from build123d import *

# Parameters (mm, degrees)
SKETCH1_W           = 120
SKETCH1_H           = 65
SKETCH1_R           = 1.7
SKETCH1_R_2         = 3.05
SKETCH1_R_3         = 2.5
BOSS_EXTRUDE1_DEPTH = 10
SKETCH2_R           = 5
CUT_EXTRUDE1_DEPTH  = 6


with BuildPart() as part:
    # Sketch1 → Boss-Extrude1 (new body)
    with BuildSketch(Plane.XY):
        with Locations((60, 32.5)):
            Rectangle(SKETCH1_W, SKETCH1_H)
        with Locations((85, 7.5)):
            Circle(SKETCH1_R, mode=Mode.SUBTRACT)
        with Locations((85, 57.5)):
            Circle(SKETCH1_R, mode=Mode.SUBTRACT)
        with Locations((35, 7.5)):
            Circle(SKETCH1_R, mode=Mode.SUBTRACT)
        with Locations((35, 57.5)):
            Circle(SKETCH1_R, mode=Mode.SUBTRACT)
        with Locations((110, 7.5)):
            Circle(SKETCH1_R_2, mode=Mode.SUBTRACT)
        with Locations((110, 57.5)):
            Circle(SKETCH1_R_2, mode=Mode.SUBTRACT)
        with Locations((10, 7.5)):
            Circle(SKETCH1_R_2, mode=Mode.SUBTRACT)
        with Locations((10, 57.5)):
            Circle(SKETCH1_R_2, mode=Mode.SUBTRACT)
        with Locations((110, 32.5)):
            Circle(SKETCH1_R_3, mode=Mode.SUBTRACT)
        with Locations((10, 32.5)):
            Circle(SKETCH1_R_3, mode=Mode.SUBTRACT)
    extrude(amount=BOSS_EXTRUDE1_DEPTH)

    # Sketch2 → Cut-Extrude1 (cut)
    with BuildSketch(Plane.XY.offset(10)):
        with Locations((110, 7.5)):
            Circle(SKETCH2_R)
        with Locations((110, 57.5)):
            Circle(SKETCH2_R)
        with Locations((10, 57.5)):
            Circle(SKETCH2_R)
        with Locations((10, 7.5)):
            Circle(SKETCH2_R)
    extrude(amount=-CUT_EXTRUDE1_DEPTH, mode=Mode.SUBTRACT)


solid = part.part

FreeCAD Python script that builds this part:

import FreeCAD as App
import Part
import Sketcher
Q = App.Units.Quantity

doc = App.newDocument("Part")
params = doc.addObject("Spreadsheet::Sheet", "Params")
for row, (alias, value) in enumerate([
    ("sketch1_diameter", "5 mm"),
    ("sketch1_diameter2", "6.1 mm"),
    ("sketch1_diameter3", "3.4 mm"),
    ("sketch1_width", "120 mm"),
    ("sketch1_height", "65 mm"),
    ("pad1_length", "10 mm"),
    ("sketch2_diameter", "10 mm"),
    ("pocket1_length", "6 mm"),
], start=1):
    params.set(f"A{row}", alias)
    params.set(f"B{row}", "=" + value)
    params.setAlias(f"B{row}", alias)

body = doc.addObject("PartDesign::Body", "Body")

# Sketch on XY plane
sketch1 = body.newObject("Sketcher::SketchObject", "Sketch")
sketch1.AttachmentSupport = (doc.getObject("XY_Plane"), [""])
sketch1.MapMode = "FlatFace"
sketch1.addGeometry(Part.LineSegment(App.Vector(0, 65, 0), App.Vector(0, 0, 0)), False)
sketch1.addGeometry(Part.LineSegment(App.Vector(0, 0, 0), App.Vector(120, 0, 0)), False)
sketch1.addGeometry(Part.LineSegment(App.Vector(120, 0, 0), App.Vector(120, 65, 0)), False)
sketch1.addGeometry(Part.LineSegment(App.Vector(120, 65, 0), App.Vector(0, 65, 0)), False)
sketch1.addGeometry(Part.Circle(App.Vector(10, 7.5, 0), App.Vector(0, 0, 1), 3), False)
sketch1.addGeometry(Part.Circle(App.Vector(35, 7.5, 0), App.Vector(0, 0, 1), 1.7), False)
sketch1.addGeometry(Part.Circle(App.Vector(10, 32.5, 0), App.Vector(0, 0, 1), 2.5), False)
sketch1.addGeometry(Part.Circle(App.Vector(85, 7.5, 0), App.Vector(0, 0, 1), 1.7), False)
sketch1.addGeometry(Part.Circle(App.Vector(110, 7.5, 0), App.Vector(0, 0, 1), 3), False)
sketch1.addGeometry(Part.Circle(App.Vector(110, 32.5, 0), App.Vector(0, 0, 1), 2.5), False)
sketch1.addGeometry(Part.Circle(App.Vector(10, 57.5, 0), App.Vector(0, 0, 1), 3), False)
sketch1.addGeometry(Part.Circle(App.Vector(35, 57.5, 0), App.Vector(0, 0, 1), 1.7), False)
sketch1.addGeometry(Part.Circle(App.Vector(85, 57.5, 0), App.Vector(0, 0, 1), 1.7), False)
sketch1.addGeometry(Part.Circle(App.Vector(110, 57.5, 0), App.Vector(0, 0, 1), 3), False)
sketch1.addConstraint(Sketcher.Constraint("Coincident", 0, 2, 1, 1))
sketch1.addConstraint(Sketcher.Constraint("Coincident", 1, 2, 2, 1))
sketch1.addConstraint(Sketcher.Constraint("Coincident", 2, 2, 3, 1))
sketch1.addConstraint(Sketcher.Constraint("Coincident", 3, 2, 0, 1))
sketch1.addConstraint(Sketcher.Constraint("Vertical", 0))
sketch1.addConstraint(Sketcher.Constraint("Horizontal", 1))
sketch1.addConstraint(Sketcher.Constraint("Vertical", 2))
sketch1.addConstraint(Sketcher.Constraint("Horizontal", 3))
sketch1.addConstraint(Sketcher.Constraint("Coincident", 0, 2, -1, 1))
sketch1.addConstraint(Sketcher.Constraint("Equal", 5, 7))
sketch1.addConstraint(Sketcher.Constraint("Equal", 4, 8))
sketch1.addConstraint(Sketcher.Constraint("Equal", 6, 9))
sketch1.addConstraint(Sketcher.Constraint("Equal", 8, 10))
sketch1.addConstraint(Sketcher.Constraint("Equal", 7, 11))
sketch1.addConstraint(Sketcher.Constraint("Equal", 11, 12))
sketch1.addConstraint(Sketcher.Constraint("Equal", 10, 13))
sketch1.addConstraint(Sketcher.Constraint("Horizontal", 4, 3, 5, 3))
sketch1.addConstraint(Sketcher.Constraint("Horizontal", 5, 3, 7, 3))
sketch1.addConstraint(Sketcher.Constraint("Horizontal", 7, 3, 8, 3))
sketch1.addConstraint(Sketcher.Constraint("Horizontal", 6, 3, 9, 3))
sketch1.addConstraint(Sketcher.Constraint("Horizontal", 10, 3, 11, 3))
sketch1.addConstraint(Sketcher.Constraint("Horizontal", 11, 3, 12, 3))
sketch1.addConstraint(Sketcher.Constraint("Horizontal", 12, 3, 13, 3))
sketch1.addConstraint(Sketcher.Constraint("Vertical", 4, 3, 6, 3))
sketch1.addConstraint(Sketcher.Constraint("Vertical", 8, 3, 9, 3))
sketch1.addConstraint(Sketcher.Constraint("Vertical", 6, 3, 10, 3))
sketch1.addConstraint(Sketcher.Constraint("Vertical", 5, 3, 11, 3))
sketch1.addConstraint(Sketcher.Constraint("Vertical", 7, 3, 12, 3))
sketch1.addConstraint(Sketcher.Constraint("Vertical", 9, 3, 13, 3))
sketch1.addConstraint(Sketcher.Constraint("Diameter", 6, Q("5 mm")))
sketch1.addConstraint(Sketcher.Constraint("Diameter", 4, Q("6.1 mm")))
sketch1.addConstraint(Sketcher.Constraint("Diameter", 5, Q("3.4 mm")))
sketch1.addConstraint(Sketcher.Constraint("DistanceX", 1, 1, 1, 2, Q("120 mm")))
sketch1.addConstraint(Sketcher.Constraint("DistanceY", 0, 2, 0, 1, Q("65 mm")))
sketch1.addConstraint(Sketcher.Constraint("DistanceX", -1, 1, 4, 3, Q("10 mm")))
sketch1.addConstraint(Sketcher.Constraint("DistanceX", -1, 1, 5, 3, Q("35 mm")))
sketch1.addConstraint(Sketcher.Constraint("DistanceX", -1, 1, 7, 3, Q("85 mm")))
sketch1.addConstraint(Sketcher.Constraint("DistanceX", -1, 1, 8, 3, Q("110 mm")))
sketch1.addConstraint(Sketcher.Constraint("DistanceY", 4, 3, 6, 3, Q("25 mm")))
sketch1.addConstraint(Sketcher.Constraint("DistanceY", 6, 3, 10, 3, Q("25 mm")))
sketch1.addConstraint(Sketcher.Constraint("DistanceY", -1, 1, 4, 3, Q("7.5 mm")))
sketch1.setExpression("Constraints[29]", "Params.sketch1_diameter")
sketch1.setExpression("Constraints[30]", "Params.sketch1_diameter2")
sketch1.setExpression("Constraints[31]", "Params.sketch1_diameter3")
sketch1.setExpression("Constraints[32]", "Params.sketch1_width")
sketch1.setExpression("Constraints[33]", "Params.sketch1_height")
pad1 = body.newObject("PartDesign::Pad", "Pad")
pad1.Profile = sketch1
pad1.setExpression("Length", "Params.pad1_length")

# Sketch on XY plane
sketch2 = body.newObject("Sketcher::SketchObject", "Sketch001")
sketch2.AttachmentSupport = (doc.getObject("XY_Plane"), [""])
sketch2.MapMode = "FlatFace"
sketch2.AttachmentOffset = App.Placement(App.Vector(0, 0, 10), App.Rotation())
sketch2.addGeometry(Part.Circle(App.Vector(110, 8, 0), App.Vector(0, 0, 1), 5), False)
sketch2.addGeometry(Part.Circle(App.Vector(110, 58, 0), App.Vector(0, 0, 1), 5), False)
sketch2.addGeometry(Part.Circle(App.Vector(10, 58, 0), App.Vector(0, 0, 1), 5), False)
sketch2.addGeometry(Part.Circle(App.Vector(10, 8, 0), App.Vector(0, 0, 1), 5), False)
sketch2.addConstraint(Sketcher.Constraint("Equal", 0, 1))
sketch2.addConstraint(Sketcher.Constraint("Equal", 1, 2))
sketch2.addConstraint(Sketcher.Constraint("Equal", 2, 3))
sketch2.addConstraint(Sketcher.Constraint("Horizontal", 1, 3, 2, 3))
sketch2.addConstraint(Sketcher.Constraint("Horizontal", 0, 3, 3, 3))
sketch2.addConstraint(Sketcher.Constraint("Vertical", 0, 3, 1, 3))
sketch2.addConstraint(Sketcher.Constraint("Vertical", 2, 3, 3, 3))
sketch2.addConstraint(Sketcher.Constraint("Diameter", 0, Q("10 mm")))
sketch2.addConstraint(Sketcher.Constraint("DistanceX", -1, 1, 0, 3, Q("110 mm")))
sketch2.addConstraint(Sketcher.Constraint("DistanceX", -1, 1, 2, 3, Q("10 mm")))
sketch2.addConstraint(Sketcher.Constraint("DistanceY", 0, 3, 1, 3, Q("50 mm")))
sketch2.addConstraint(Sketcher.Constraint("DistanceY", -1, 1, 0, 3, Q("7.5 mm")))
sketch2.setExpression("Constraints[7]", "Params.sketch2_diameter")
pocket1 = body.newObject("PartDesign::Pocket", "Pocket")
pocket1.Profile = sketch2
pocket1.setExpression("Length", "Params.pocket1_length")

doc.recompute()
